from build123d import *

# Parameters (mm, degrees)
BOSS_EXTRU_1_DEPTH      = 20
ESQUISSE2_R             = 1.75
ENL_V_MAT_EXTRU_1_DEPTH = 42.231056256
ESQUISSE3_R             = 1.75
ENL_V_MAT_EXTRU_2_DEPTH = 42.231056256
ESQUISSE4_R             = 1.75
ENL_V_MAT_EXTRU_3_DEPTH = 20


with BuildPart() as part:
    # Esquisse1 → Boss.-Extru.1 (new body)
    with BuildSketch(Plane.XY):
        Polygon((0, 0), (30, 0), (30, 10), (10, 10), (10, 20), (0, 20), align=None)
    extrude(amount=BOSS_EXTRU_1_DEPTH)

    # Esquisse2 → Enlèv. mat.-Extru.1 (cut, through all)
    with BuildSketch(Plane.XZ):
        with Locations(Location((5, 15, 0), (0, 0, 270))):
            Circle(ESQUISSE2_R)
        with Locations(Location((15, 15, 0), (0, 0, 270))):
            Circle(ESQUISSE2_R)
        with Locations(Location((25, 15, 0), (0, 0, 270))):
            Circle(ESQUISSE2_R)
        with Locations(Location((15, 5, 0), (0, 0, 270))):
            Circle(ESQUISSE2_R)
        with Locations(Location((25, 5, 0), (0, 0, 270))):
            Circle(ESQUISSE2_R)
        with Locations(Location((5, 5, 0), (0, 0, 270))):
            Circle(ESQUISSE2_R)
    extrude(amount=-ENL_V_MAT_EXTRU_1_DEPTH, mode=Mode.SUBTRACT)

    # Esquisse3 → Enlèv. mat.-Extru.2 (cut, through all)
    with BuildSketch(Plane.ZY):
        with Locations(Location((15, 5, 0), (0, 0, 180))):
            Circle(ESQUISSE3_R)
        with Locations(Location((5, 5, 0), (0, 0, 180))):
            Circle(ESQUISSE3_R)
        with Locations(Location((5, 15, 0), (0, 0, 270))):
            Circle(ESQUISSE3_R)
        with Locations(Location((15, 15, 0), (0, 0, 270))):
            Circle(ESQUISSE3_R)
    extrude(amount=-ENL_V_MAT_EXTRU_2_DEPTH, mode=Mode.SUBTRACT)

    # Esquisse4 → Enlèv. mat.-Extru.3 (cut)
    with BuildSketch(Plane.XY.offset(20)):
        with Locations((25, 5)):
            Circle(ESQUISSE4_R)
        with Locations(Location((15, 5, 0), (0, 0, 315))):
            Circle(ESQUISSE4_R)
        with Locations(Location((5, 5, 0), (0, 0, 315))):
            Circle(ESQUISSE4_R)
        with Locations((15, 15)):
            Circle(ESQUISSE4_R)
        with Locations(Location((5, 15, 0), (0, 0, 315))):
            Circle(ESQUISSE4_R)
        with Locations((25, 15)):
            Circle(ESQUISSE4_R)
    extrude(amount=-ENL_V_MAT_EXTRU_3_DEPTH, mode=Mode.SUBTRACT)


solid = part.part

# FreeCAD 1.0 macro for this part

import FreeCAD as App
import Part
import Sketcher

V = App.Vector

doc = App.newDocument("Part")
body = doc.addObject("PartDesign::Body", "Body")

# Sketch on XY plane
sketch1 = doc.addObject("Sketcher::SketchObject", "Sketch")
body.addObject(sketch1)
sketch1.AttachmentSupport = (doc.XY_Plane, [""])
sketch1.MapMode = "FlatFace"
sketch1.addGeometry([
    Part.LineSegment(V(0, 0, 0), V(30, 0, 0)),  # 0
    Part.LineSegment(V(30, 0, 0), V(30, 10, 0)),  # 1
    Part.LineSegment(V(30, 10, 0), V(10, 10, 0)),  # 2
    Part.LineSegment(V(10, 10, 0), V(10, 20, 0)),  # 3
    Part.LineSegment(V(10, 20, 0), V(0, 20, 0)),  # 4
    Part.LineSegment(V(0, 20, 0), V(0, 0, 0)),  # 5
], False)
sketch1.addConstraint([
    Sketcher.Constraint("Coincident", 0, 2, 1, 1),
    Sketcher.Constraint("Coincident", 1, 2, 2, 1),
    Sketcher.Constraint("Coincident", 2, 2, 3, 1),
    Sketcher.Constraint("Coincident", 3, 2, 4, 1),
    Sketcher.Constraint("Coincident", 4, 2, 5, 1),
    Sketcher.Constraint("Coincident", 5, 2, 0, 1),
    Sketcher.Constraint("Horizontal", 0),
    Sketcher.Constraint("Vertical", 1),
    Sketcher.Constraint("Horizontal", 2),
    Sketcher.Constraint("Vertical", 3),
    Sketcher.Constraint("Horizontal", 4),
    Sketcher.Constraint("Vertical", 5),
    Sketcher.Constraint("Coincident", 5, 2, -1, 1),
    Sketcher.Constraint("Equal", 4, 1),
    Sketcher.Constraint("Equal", 1, 3),
    Sketcher.Constraint("Equal", 2, 5),
    Sketcher.Constraint("DistanceX", 0, 1, 0, 2, 30.0),
])
pad1 = doc.addObject("PartDesign::Pad", "Pad")
body.addObject(pad1)
pad1.Profile = sketch1
pad1.Length = 20

# Sketch on XZ plane
sketch2 = doc.addObject("Sketcher::SketchObject", "Sketch001")
body.addObject(sketch2)
sketch2.AttachmentSupport = (doc.XZ_Plane, [""])
sketch2.MapMode = "FlatFace"
sketch2.addGeometry([
    Part.Circle(V(5, 15, 0), V(0, 0, 1), 1.8),  # 0
    Part.Circle(V(15, 15, 0), V(0, 0, 1), 1.8),  # 1
    Part.Circle(V(25, 15, 0), V(0, 0, 1), 1.8),  # 2
    Part.Circle(V(15, 5, 0), V(0, 0, 1), 1.8),  # 3
    Part.Circle(V(25, 5, 0), V(0, 0, 1), 1.8),  # 4
    Part.Circle(V(5, 5, 0), V(0, 0, 1), 1.8),  # 5
], False)
sketch2.addConstraint([
    Sketcher.Constraint("Equal", 0, 1),
    Sketcher.Constraint("Equal", 1, 2),
    Sketcher.Constraint("Equal", 2, 3),
    Sketcher.Constraint("Equal", 3, 4),
    Sketcher.Constraint("Equal", 4, 5),
    Sketcher.Constraint("Horizontal", 0, 3, 1, 3),
    Sketcher.Constraint("Horizontal", 1, 3, 2, 3),
    Sketcher.Constraint("Horizontal", 3, 3, 4, 3),
    Sketcher.Constraint("Horizontal", 4, 3, 5, 3),
    Sketcher.Constraint("Vertical", 1, 3, 3, 3),
    Sketcher.Constraint("Vertical", 2, 3, 4, 3),
    Sketcher.Constraint("Vertical", 0, 3, 5, 3),
    Sketcher.Constraint("Diameter", 0, 3.5),
    Sketcher.Constraint("DistanceX", -1, 1, 0, 3, 5.0),
    Sketcher.Constraint("DistanceY", -1, 1, 0, 3, 15.0),
    Sketcher.Constraint("DistanceX", -1, 1, 1, 3, 15.0),
    Sketcher.Constraint("DistanceX", -1, 1, 2, 3, 25.0),
    Sketcher.Constraint("DistanceY", -1, 1, 3, 3, 5.0),
])
pocket1 = doc.addObject("PartDesign::Pocket", "Pocket")
body.addObject(pocket1)
pocket1.Profile = sketch2
pocket1.Type = "ThroughAll"

# Sketch on YZ plane
sketch3 = doc.addObject("Sketcher::SketchObject", "Sketch002")
body.addObject(sketch3)
sketch3.AttachmentSupport = (doc.YZ_Plane, [""])
sketch3.MapMode = "FlatFace"
sketch3.addGeometry([
    Part.Circle(V(5, 15, 0), V(0, 0, 1), 1.8),
    Part.Circle(V(5, 5, 0), V(0, 0, 1), 1.8),
    Part.Circle(V(15, 5, 0), V(0, 0, 1), 1.8),
    Part.Circle(V(15, 15, 0), V(0, 0, 1), 1.8),
], False)
sketch3.addConstraint([
    Sketcher.Constraint("Equal", 0, 1),
    Sketcher.Constraint("Equal", 1, 2),
    Sketcher.Constraint("Equal", 2, 3),
    Sketcher.Constraint("Horizontal", 1, 3, 2, 3),
    Sketcher.Constraint("Horizontal", 0, 3, 3, 3),
    Sketcher.Constraint("Vertical", 0, 3, 1, 3),
    Sketcher.Constraint("Vertical", 2, 3, 3, 3),
    Sketcher.Constraint("Diameter", 0, 3.5),
    Sketcher.Constraint("DistanceX", -1, 1, 0, 3, 5.0),
    Sketcher.Constraint("DistanceY", -1, 1, 0, 3, 15.0),
    Sketcher.Constraint("DistanceY", -1, 1, 1, 3, 5.0),
    Sketcher.Constraint("DistanceX", -1, 1, 2, 3, 15.0),
])
pocket2 = doc.addObject("PartDesign::Pocket", "Pocket001")
body.addObject(pocket2)
pocket2.Profile = sketch3
pocket2.Type = "ThroughAll"
pocket2.Reversed = True

# Sketch on XY plane
sketch4 = doc.addObject("Sketcher::SketchObject", "Sketch003")
body.addObject(sketch4)
sketch4.AttachmentSupport = (doc.XY_Plane, [""])
sketch4.MapMode = "FlatFace"
sketch4.AttachmentOffset = App.Placement(V(0, 0, 20), App.Rotation())
sketch4.addGeometry([
    Part.Circle(V(25, 5, 0), V(0, 0, 1), 1.8),  # 0
    Part.Circle(V(15, 5, 0), V(0, 0, 1), 1.8),  # 1
    Part.Circle(V(5, 5, 0), V(0, 0, 1), 1.8),  # 2
    Part.Circle(V(15, 15, 0), V(0, 0, 1), 1.8),  # 3
    Part.Circle(V(5, 15, 0), V(0, 0, 1), 1.8),  # 4
    Part.Circle(V(25, 15, 0), V(0, 0, 1), 1.8),  # 5
], False)
sketch4.addConstraint([
    Sketcher.Constraint("Equal", 0, 1),
    Sketcher.Constraint("Equal", 1, 2),
    Sketcher.Constraint("Equal", 2, 3),
    Sketcher.Constraint("Equal", 3, 4),
    Sketcher.Constraint("Equal", 4, 5),
    Sketcher.Constraint("Horizontal", 0, 3, 1, 3),
    Sketcher.Constraint("Horizontal", 1, 3, 2, 3),
    Sketcher.Constraint("Horizontal", 3, 3, 4, 3),
    Sketcher.Constraint("Horizontal", 4, 3, 5, 3),
    Sketcher.Constraint("Vertical", 1, 3, 3, 3),
    Sketcher.Constraint("Vertical", 2, 3, 4, 3),
    Sketcher.Constraint("Vertical", 0, 3, 5, 3),
    Sketcher.Constraint("Diameter", 0, 3.5),
    Sketcher.Constraint("DistanceX", -1, 1, 0, 3, 25.0),
    Sketcher.Constraint("DistanceY", -1, 1, 0, 3, 5.0),
    Sketcher.Constraint("DistanceX", -1, 1, 1, 3, 15.0),
    Sketcher.Constraint("DistanceX", -1, 1, 2, 3, 5.0),
    Sketcher.Constraint("DistanceY", -1, 1, 3, 3, 15.0),
])
pocket3 = doc.addObject("PartDesign::Pocket", "Pocket002")
body.addObject(pocket3)
pocket3.Profile = sketch4
pocket3.Length = 20

doc.recompute()
